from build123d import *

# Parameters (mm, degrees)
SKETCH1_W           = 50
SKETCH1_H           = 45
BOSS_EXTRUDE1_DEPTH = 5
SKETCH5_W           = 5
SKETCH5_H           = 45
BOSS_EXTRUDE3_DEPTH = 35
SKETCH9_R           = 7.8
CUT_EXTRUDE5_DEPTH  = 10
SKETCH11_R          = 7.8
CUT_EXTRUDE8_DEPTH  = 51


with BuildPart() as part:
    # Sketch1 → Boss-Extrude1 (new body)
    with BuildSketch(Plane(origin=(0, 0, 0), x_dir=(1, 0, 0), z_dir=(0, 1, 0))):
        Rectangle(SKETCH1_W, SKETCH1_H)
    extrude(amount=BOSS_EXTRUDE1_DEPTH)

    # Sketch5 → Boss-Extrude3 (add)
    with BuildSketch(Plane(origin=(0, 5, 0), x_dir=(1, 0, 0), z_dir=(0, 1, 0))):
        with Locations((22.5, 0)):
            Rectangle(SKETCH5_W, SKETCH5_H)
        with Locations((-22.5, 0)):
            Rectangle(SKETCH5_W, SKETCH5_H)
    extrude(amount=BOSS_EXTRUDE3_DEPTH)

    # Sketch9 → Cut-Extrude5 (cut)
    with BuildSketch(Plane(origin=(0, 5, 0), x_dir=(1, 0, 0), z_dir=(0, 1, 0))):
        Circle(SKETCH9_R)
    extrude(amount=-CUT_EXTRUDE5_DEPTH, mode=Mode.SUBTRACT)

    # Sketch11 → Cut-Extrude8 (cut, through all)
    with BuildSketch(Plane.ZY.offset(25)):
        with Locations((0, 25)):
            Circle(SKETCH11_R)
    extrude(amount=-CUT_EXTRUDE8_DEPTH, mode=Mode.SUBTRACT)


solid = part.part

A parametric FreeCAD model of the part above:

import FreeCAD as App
import Part
import Sketcher
Q = App.Units.Quantity


def add_polygon(sketch, points):
    """Adds a closed chain of lines whose ends are joined by coincident constraints."""
    first, n = sketch.GeometryCount, len(points)
    for a, b in zip(points, points[1:] + points[:1]):
        sketch.addGeometry(Part.LineSegment(App.Vector(*a, 0), App.Vector(*b, 0)), False)
    for i in range(n):
        sketch.addConstraint(Sketcher.Constraint("Coincident", first + i, 2, first + (i + 1) % n, 1))

doc = App.newDocument("Part")
body = doc.addObject("PartDesign::Body", "Body")

sketch1 = body.newObject("Sketcher::SketchObject", "Sketch")
sketch1.AttachmentSupport = (doc.getObject("XZ_Plane"), [""])
sketch1.MapMode = "FlatFace"
add_polygon(sketch1, [(-25, -22), (-25, 22), (25, 22), (25, -22)])
sketch1.addConstraint([
    Sketcher.Constraint("Vertical", 0),
    Sketcher.Constraint("Horizontal", 1),
    Sketcher.Constraint("Vertical", 2),
    Sketcher.Constraint("Horizontal", 3),
    Sketcher.Constraint("Symmetric", 0, 2, 2, 2, -1, 1),
    Sketcher.Constraint("DistanceX", 1, 1, 1, 2, Q("50 mm")),
    Sketcher.Constraint("DistanceY", 0, 1, 0, 2, Q("45 mm")),
])
pad1 = body.newObject("PartDesign::Pad", "Pad")
pad1.Profile = sketch1
pad1.Length = 5
pad1.Reversed = True

sketch2 = body.newObject("Sketcher::SketchObject", "Sketch001")
sketch2.AttachmentSupport = (doc.getObject("XZ_Plane"), [""])
sketch2.MapMode = "FlatFace"
sketch2.AttachmentOffset = App.Placement(App.Vector(0, 0, -5), App.Rotation())
add_polygon(sketch2, [(20, -22), (20, 22), (25, 22), (25, -22)])
add_polygon(sketch2, [(-25, -22), (-25, 22), (-20, 22), (-20, -22)])
sketch2.addConstraint([
    Sketcher.Constraint("Vertical", 0),
    Sketcher.Constraint("Horizontal", 1),
    Sketcher.Constraint("Vertical", 2),
    Sketcher.Constraint("Horizontal", 3),
    Sketcher.Constraint("Vertical", 4),
    Sketcher.Constraint("Horizontal", 5),
    Sketcher.Constraint("Vertical", 6),
    Sketcher.Constraint("Horizontal", 7),
    Sketcher.Constraint("Symmetric", 2, 2, 4, 2, -1, 1),
    Sketcher.Constraint("Symmetric", 0, 2, 6, 2, -1, 1),
    Sketcher.Constraint("Horizontal", 1, 2, 4, 2),
    Sketcher.Constraint("DistanceX", 1, 1, 1, 2, Q("5 mm")),
    Sketcher.Constraint("DistanceY", 0, 1, 0, 2, Q("45 mm")),
    Sketcher.Constraint("DistanceX", -1, 1, 0, 2, Q("20 mm")),
])
pad2 = body.newObject("PartDesign::Pad", "Pad001")
pad2.Profile = sketch2
pad2.Length = 35
pad2.Reversed = True

sketch3 = body.newObject("Sketcher::SketchObject", "Sketch002")
sketch3.AttachmentSupport = (doc.getObject("XZ_Plane"), [""])
sketch3.MapMode = "FlatFace"
sketch3.AttachmentOffset = App.Placement(App.Vector(0, 0, -5), App.Rotation())
sketch3.addGeometry(Part.Circle(App.Vector(0, 0, 0), App.Vector(0, 0, 1), 8), False)
sketch3.addConstraint([
    Sketcher.Constraint("Coincident", 0, 3, -1, 1),
    Sketcher.Constraint("Diameter", 0, Q("15.6 mm")),
])
pocket1 = body.newObject("PartDesign::Pocket", "Pocket")
pocket1.Profile = sketch3
pocket1.Length = 10
pocket1.Reversed = True

sketch4 = body.newObject("Sketcher::SketchObject", "Sketch003")
sketch4.AttachmentSupport = (doc.getObject("YZ_Plane"), [""])
sketch4.MapMode = "FlatFace"
sketch4.AttachmentOffset = App.Placement(App.Vector(0, 0, -25), App.Rotation())
sketch4.addGeometry(Part.Circle(App.Vector(25, 0, 0), App.Vector(0, 0, 1), 8), False)
sketch4.addConstraint([
    Sketcher.Constraint("PointOnObject", 0, 3, -1),
    Sketcher.Constraint("Diameter", 0, Q("15.6 mm")),
    Sketcher.Constraint("DistanceX", -1, 1, 0, 3, Q("25 mm")),
])
pocket2 = body.newObject("PartDesign::Pocket", "Pocket001")
pocket2.Profile = sketch4
pocket2.Type = "ThroughAll"
pocket2.Reversed = True

doc.recompute()
